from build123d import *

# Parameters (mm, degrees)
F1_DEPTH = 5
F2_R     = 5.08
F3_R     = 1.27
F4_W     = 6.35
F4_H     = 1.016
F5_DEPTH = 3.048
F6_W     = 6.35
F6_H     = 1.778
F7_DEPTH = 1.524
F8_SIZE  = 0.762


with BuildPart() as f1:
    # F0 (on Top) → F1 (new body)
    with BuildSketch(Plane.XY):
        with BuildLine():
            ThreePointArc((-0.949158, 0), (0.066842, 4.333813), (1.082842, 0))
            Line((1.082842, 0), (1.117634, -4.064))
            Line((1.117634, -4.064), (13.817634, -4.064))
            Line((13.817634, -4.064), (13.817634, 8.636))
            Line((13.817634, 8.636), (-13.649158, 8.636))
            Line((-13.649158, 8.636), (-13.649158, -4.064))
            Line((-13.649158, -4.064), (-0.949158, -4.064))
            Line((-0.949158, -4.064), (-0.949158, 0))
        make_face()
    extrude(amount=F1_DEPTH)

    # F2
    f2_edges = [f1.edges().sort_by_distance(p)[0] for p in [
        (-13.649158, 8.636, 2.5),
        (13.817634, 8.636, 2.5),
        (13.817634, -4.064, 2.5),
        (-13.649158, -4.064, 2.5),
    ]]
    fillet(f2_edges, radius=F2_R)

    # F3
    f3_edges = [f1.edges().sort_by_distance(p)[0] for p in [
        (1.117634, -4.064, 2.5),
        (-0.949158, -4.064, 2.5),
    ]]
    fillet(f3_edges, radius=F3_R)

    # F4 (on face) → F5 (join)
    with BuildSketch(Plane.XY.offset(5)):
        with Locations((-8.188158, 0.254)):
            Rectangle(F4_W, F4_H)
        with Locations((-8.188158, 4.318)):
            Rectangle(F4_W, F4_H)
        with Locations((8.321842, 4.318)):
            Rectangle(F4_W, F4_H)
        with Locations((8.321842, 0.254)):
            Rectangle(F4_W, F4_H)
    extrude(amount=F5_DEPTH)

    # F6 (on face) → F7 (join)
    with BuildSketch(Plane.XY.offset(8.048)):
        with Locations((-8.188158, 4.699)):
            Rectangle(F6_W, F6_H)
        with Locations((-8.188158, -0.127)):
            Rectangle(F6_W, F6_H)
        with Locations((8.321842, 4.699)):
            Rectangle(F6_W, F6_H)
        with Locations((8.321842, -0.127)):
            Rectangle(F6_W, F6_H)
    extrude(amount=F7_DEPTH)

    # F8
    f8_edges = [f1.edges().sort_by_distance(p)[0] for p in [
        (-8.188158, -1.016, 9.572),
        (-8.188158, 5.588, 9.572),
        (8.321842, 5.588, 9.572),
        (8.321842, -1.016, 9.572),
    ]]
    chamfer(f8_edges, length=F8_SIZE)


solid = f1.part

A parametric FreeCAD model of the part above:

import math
import FreeCAD as App
import Part
import Sketcher
from FreeCAD import Vector
Q = App.Units.Quantity


def edges_at(feature, points):
    """Names of the edges that pass closest to the given points."""
    edges = feature.Shape.Edges
    near = lambda p: min(range(len(edges)), key=lambda i: edges[i].distToShape(Part.Vertex(*p))[0])
    return sorted({f"Edge{near(p) + 1}" for p in points})

doc = App.newDocument("Part")
body = doc.addObject("PartDesign::Body", "Body")

sketch1 = doc.addObject("Sketcher::SketchObject", "Sketch")
body.addObject(sketch1)
sketch1.AttachmentSupport = (doc.XY_Plane, [""])
sketch1.MapMode = "FlatFace"
sketch1.addGeometry([
    Part.ArcOfCircle(Part.Circle(Vector(0.066842, 2.047813, 0), Vector(0, 0, 1), 2.286), math.radians(-63.612197), math.radians(243.612197)),
    Part.LineSegment(Vector(1.082842, 0, 0), Vector(1.117634, -4.064, 0)),
    Part.LineSegment(Vector(1.117634, -4.064, 0), Vector(13.817634, -4.064, 0)),
    Part.LineSegment(Vector(13.817634, -4.064, 0), Vector(13.817634, 8.636, 0)),
    Part.LineSegment(Vector(13.817634, 8.636, 0), Vector(-13.649158, 8.636, 0)),
    Part.LineSegment(Vector(-13.649158, 8.636, 0), Vector(-13.649158, -4.064, 0)),
    Part.LineSegment(Vector(-13.649158, -4.064, 0), Vector(-0.949158, -4.064, 0)),
    Part.LineSegment(Vector(-0.949158, -4.064, 0), Vector(-0.949158, 0, 0)),
], False)
sketch1.addConstraint([
    Sketcher.Constraint("Coincident", 0, 1, 1, 1),
    Sketcher.Constraint("Coincident", 1, 2, 2, 1),
    Sketcher.Constraint("Coincident", 2, 2, 3, 1),
    Sketcher.Constraint("Coincident", 3, 2, 4, 1),
    Sketcher.Constraint("Coincident", 4, 2, 5, 1),
    Sketcher.Constraint("Coincident", 5, 2, 6, 1),
    Sketcher.Constraint("Coincident", 6, 2, 7, 1),
    Sketcher.Constraint("Coincident", 7, 2, 0, 2),
    Sketcher.Constraint("Horizontal", 2),
    Sketcher.Constraint("Vertical", 3),
    Sketcher.Constraint("Horizontal", 4),
    Sketcher.Constraint("Vertical", 5),
    Sketcher.Constraint("Horizontal", 6),
    Sketcher.Constraint("Vertical", 7),
    Sketcher.Constraint("PointOnObject", 0, 1, -1),
    Sketcher.Constraint("PointOnObject", 7, 2, -1),
    Sketcher.Constraint("Horizontal", 2, 2, 5, 2),
    Sketcher.Constraint("Equal", 2, 6),
    Sketcher.Constraint("Equal", 6, 3),
    Sketcher.Constraint("Radius", 0, Q("0.09 in")),
    Sketcher.Constraint("DistanceX", 2, 1, 2, 2, Q("0.5 in")),
    Sketcher.Constraint("DistanceY", 7, 1, 7, 2, Q("0.16 in")),
    Sketcher.Constraint("DistanceX", 0, 3, 0, 1, Q("0.04 in")),
    Sketcher.Constraint("DistanceX", 4, 2, 4, 1, 27.466792),
    Sketcher.Constraint("DistanceX", -1, 1, 0, 3, 0.066842),
])
pad1 = doc.addObject("PartDesign::Pad", "Pad")
body.addObject(pad1)
pad1.Profile = sketch1
pad1.Length = 5
doc.recompute()

fillet = doc.addObject("PartDesign::Fillet", "Fillet")
body.addObject(fillet)
fillet.Base = (pad1, edges_at(pad1, [
    (-13.649, 8.636, 2.5),
    (13.818, 8.636, 2.5),
    (13.818, -4.064, 2.5),
    (-13.649, -4.064, 2.5),
]))
fillet.Radius = Q("0.2 in")
doc.recompute()

fillet2 = doc.addObject("PartDesign::Fillet", "Fillet001")
body.addObject(fillet2)
fillet2.Base = (fillet, edges_at(fillet, [(1.118, -4.064, 2.5), (-0.949, -4.064, 2.5)]))
fillet2.Radius = Q("0.05 in")

sketch2 = doc.addObject("Sketcher::SketchObject", "Sketch001")
body.addObject(sketch2)
sketch2.AttachmentSupport = (doc.XY_Plane, [""])
sketch2.MapMode = "FlatFace"
sketch2.AttachmentOffset = App.Placement(Vector(0, 0, 5), App.Rotation())
sketch2.addGeometry([
    Part.LineSegment(Vector(-11.363158, 0.762, 0), Vector(-11.363158, -0.254, 0)),
    Part.LineSegment(Vector(-11.363158, -0.254, 0), Vector(-5.013158, -0.254, 0)),
    Part.LineSegment(Vector(-5.013158, -0.254, 0), Vector(-5.013158, 0.762, 0)),
    Part.LineSegment(Vector(-5.013158, 0.762, 0), Vector(-11.363158, 0.762, 0)),
    Part.LineSegment(Vector(-11.363158, 4.826, 0), Vector(-11.363158, 3.81, 0)),
    Part.LineSegment(Vector(-11.363158, 3.81, 0), Vector(-5.013158, 3.81, 0)),
    Part.LineSegment(Vector(-5.013158, 3.81, 0), Vector(-5.013158, 4.826, 0)),
    Part.LineSegment(Vector(-5.013158, 4.826, 0), Vector(-11.363158, 4.826, 0)),
    Part.LineSegment(Vector(5.146842, 4.826, 0), Vector(5.146842, 3.81, 0)),
    Part.LineSegment(Vector(5.146842, 3.81, 0), Vector(11.496842, 3.81, 0)),
    Part.LineSegment(Vector(11.496842, 3.81, 0), Vector(11.496842, 4.826, 0)),
    Part.LineSegment(Vector(11.496842, 4.826, 0), Vector(5.146842, 4.826, 0)),
    Part.LineSegment(Vector(5.146842, 0.762, 0), Vector(5.146842, -0.254, 0)),
    Part.LineSegment(Vector(5.146842, -0.254, 0), Vector(11.496842, -0.254, 0)),
    Part.LineSegment(Vector(11.496842, -0.254, 0), Vector(11.496842, 0.762, 0)),
    Part.LineSegment(Vector(11.496842, 0.762, 0), Vector(5.146842, 0.762, 0)),
], False)
sketch2.addConstraint([
    Sketcher.Constraint("Coincident", 0, 2, 1, 1),
    Sketcher.Constraint("Coincident", 1, 2, 2, 1),
    Sketcher.Constraint("Coincident", 2, 2, 3, 1),
    Sketcher.Constraint("Coincident", 3, 2, 0, 1),
    Sketcher.Constraint("Coincident", 4, 2, 5, 1),
    Sketcher.Constraint("Coincident", 5, 2, 6, 1),
    Sketcher.Constraint("Coincident", 6, 2, 7, 1),
    Sketcher.Constraint("Coincident", 7, 2, 4, 1),
    Sketcher.Constraint("Coincident", 8, 2, 9, 1),
    Sketcher.Constraint("Coincident", 9, 2, 10, 1),
    Sketcher.Constraint("Coincident", 10, 2, 11, 1),
    Sketcher.Constraint("Coincident", 11, 2, 8, 1),
    Sketcher.Constraint("Coincident", 12, 2, 13, 1),
    Sketcher.Constraint("Coincident", 13, 2, 14, 1),
    Sketcher.Constraint("Coincident", 14, 2, 15, 1),
    Sketcher.Constraint("Coincident", 15, 2, 12, 1),
    Sketcher.Constraint("Vertical", 0),
    Sketcher.Constraint("Horizontal", 1),
    Sketcher.Constraint("Vertical", 2),
    Sketcher.Constraint("Horizontal", 3),
    Sketcher.Constraint("Vertical", 4),
    Sketcher.Constraint("Horizontal", 5),
    Sketcher.Constraint("Vertical", 6),
    Sketcher.Constraint("Horizontal", 7),
    Sketcher.Constraint("Vertical", 8),
    Sketcher.Constraint("Horizontal", 9),
    Sketcher.Constraint("Vertical", 10),
    Sketcher.Constraint("Horizontal", 11),
    Sketcher.Constraint("Vertical", 12),
    Sketcher.Constraint("Horizontal", 13),
    Sketcher.Constraint("Vertical", 14),
    Sketcher.Constraint("Horizontal", 15),
    Sketcher.Constraint("Horizontal", 5, 2, 8, 2),
    Sketcher.Constraint("Horizontal", 7, 2, 10, 2),
    Sketcher.Constraint("Horizontal", 1, 2, 12, 2),
    Sketcher.Constraint("Horizontal", 3, 2, 14, 2),
    Sketcher.Constraint("Vertical", 3, 2, 4, 2),
    Sketcher.Constraint("Vertical", 2, 2, 5, 2),
    Sketcher.Constraint("Vertical", 11, 2, 12, 2),
    Sketcher.Constraint("Vertical", 10, 2, 13, 2),
    Sketcher.Constraint("Equal", 7, 9),
    Sketcher.Constraint("Equal", 2, 4),
    Sketcher.Constraint("DistanceX", 1, 1, 1, 2, Q("0.25 in")),
    Sketcher.Constraint("DistanceY", 0, 2, 0, 1, Q("0.04 in")),
    Sketcher.Constraint("DistanceY", 1, 2, 6, 2, Q("0.2 in")),
    Sketcher.Constraint("DistanceX", 5, 2, 8, 2, Q("0.4 in")),
    Sketcher.Constraint("DistanceY", 0, 2, -1, 1, Q("0.01 in")),
    Sketcher.Constraint("DistanceX", -1, 1, 9, 2, 11.496842),
])
pad2 = doc.addObject("PartDesign::Pad", "Pad001")
body.addObject(pad2)
pad2.Profile = sketch2
pad2.Length = Q("0.12 in")

sketch3 = doc.addObject("Sketcher::SketchObject", "Sketch002")
body.addObject(sketch3)
sketch3.AttachmentSupport = (doc.XY_Plane, [""])
sketch3.MapMode = "FlatFace"
sketch3.AttachmentOffset = App.Placement(Vector(0, 0, 8.048), App.Rotation())
sketch3.addGeometry([
    Part.LineSegment(Vector(-11.363158, 5.588, 0), Vector(-11.363158, 3.81, 0)),
    Part.LineSegment(Vector(-11.363158, 3.81, 0), Vector(-5.013158, 3.81, 0)),
    Part.LineSegment(Vector(-5.013158, 3.81, 0), Vector(-5.013158, 5.588, 0)),
    Part.LineSegment(Vector(-5.013158, 5.588, 0), Vector(-11.363158, 5.588, 0)),
    Part.LineSegment(Vector(-11.363158, 0.762, 0), Vector(-11.363158, -1.016, 0)),
    Part.LineSegment(Vector(-11.363158, -1.016, 0), Vector(-5.013158, -1.016, 0)),
    Part.LineSegment(Vector(-5.013158, -1.016, 0), Vector(-5.013158, 0.762, 0)),
    Part.LineSegment(Vector(-5.013158, 0.762, 0), Vector(-11.363158, 0.762, 0)),
    Part.LineSegment(Vector(5.146842, 5.588, 0), Vector(5.146842, 3.81, 0)),
    Part.LineSegment(Vector(5.146842, 3.81, 0), Vector(11.496842, 3.81, 0)),
    Part.LineSegment(Vector(11.496842, 3.81, 0), Vector(11.496842, 5.588, 0)),
    Part.LineSegment(Vector(11.496842, 5.588, 0), Vector(5.146842, 5.588, 0)),
    Part.LineSegment(Vector(5.146842, 0.762, 0), Vector(5.146842, -1.016, 0)),
    Part.LineSegment(Vector(5.146842, -1.016, 0), Vector(11.496842, -1.016, 0)),
    Part.LineSegment(Vector(11.496842, -1.016, 0), Vector(11.496842, 0.762, 0)),
    Part.LineSegment(Vector(11.496842, 0.762, 0), Vector(5.146842, 0.762, 0)),
], False)
sketch3.addConstraint([
    Sketcher.Constraint("Coincident", 0, 2, 1, 1),
    Sketcher.Constraint("Coincident", 1, 2, 2, 1),
    Sketcher.Constraint("Coincident", 2, 2, 3, 1),
    Sketcher.Constraint("Coincident", 3, 2, 0, 1),
    Sketcher.Constraint("Coincident", 4, 2, 5, 1),
    Sketcher.Constraint("Coincident", 5, 2, 6, 1),
    Sketcher.Constraint("Coincident", 6, 2, 7, 1),
    Sketcher.Constraint("Coincident", 7, 2, 4, 1),
    Sketcher.Constraint("Coincident", 8, 2, 9, 1),
    Sketcher.Constraint("Coincident", 9, 2, 10, 1),
    Sketcher.Constraint("Coincident", 10, 2, 11, 1),
    Sketcher.Constraint("Coincident", 11, 2, 8, 1),
    Sketcher.Constraint("Coincident", 12, 2, 13, 1),
    Sketcher.Constraint("Coincident", 13, 2, 14, 1),
    Sketcher.Constraint("Coincident", 14, 2, 15, 1),
    Sketcher.Constraint("Coincident", 15, 2, 12, 1),
    Sketcher.Constraint("Vertical", 0),
    Sketcher.Constraint("Horizontal", 1),
    Sketcher.Constraint("Vertical", 2),
    Sketcher.Constraint("Horizontal", 3),
    Sketcher.Constraint("Vertical", 4),
    Sketcher.Constraint("Horizontal", 5),
    Sketcher.Constraint("Vertical", 6),
    Sketcher.Constraint("Horizontal", 7),
    Sketcher.Constraint("Vertical", 8),
    Sketcher.Constraint("Horizontal", 9),
    Sketcher.Constraint("Vertical", 10),
    Sketcher.Constraint("Horizontal", 11),
    Sketcher.Constraint("Vertical", 12),
    Sketcher.Constraint("Horizontal", 13),
    Sketcher.Constraint("Vertical", 14),
    Sketcher.Constraint("Horizontal", 15),
    Sketcher.Constraint("Horizontal", 1, 2, 8, 2),
    Sketcher.Constraint("Horizontal", 3, 2, 10, 2),
    Sketcher.Constraint("Horizontal", 5, 2, 12, 2),
    Sketcher.Constraint("Horizontal", 7, 2, 14, 2),
    Sketcher.Constraint("Vertical", 3, 2, 4, 2),
    Sketcher.Constraint("Vertical", 2, 2, 5, 2),
    Sketcher.Constraint("Vertical", 11, 2, 12, 2),
    Sketcher.Constraint("Vertical", 10, 2, 13, 2),
    Sketcher.Constraint("Equal", 7, 9),
    Sketcher.Constraint("Equal", 2, 4),
    Sketcher.Constraint("DistanceX", 1, 1, 1, 2, Q("0.25 in")),
    Sketcher.Constraint("DistanceY", 0, 2, 0, 1, Q("0.07 in")),
    Sketcher.Constraint("DistanceX", 1, 2, 8, 2, Q("0.4 in")),
    Sketcher.Constraint("DistanceY", -1, 1, 0, 2, Q("0.15 in")),
    Sketcher.Constraint("DistanceY", 4, 2, -1, 1, Q("0.04 in")),
    Sketcher.Constraint("DistanceX", -1, 1, 9, 2, 11.496842),
])
pad3 = doc.addObject("PartDesign::Pad", "Pad002")
body.addObject(pad3)
pad3.Profile = sketch3
pad3.Length = Q("0.06 in")
doc.recompute()

chamfer = doc.addObject("PartDesign::Chamfer", "Chamfer")
body.addObject(chamfer)
chamfer.Base = (pad3, edges_at(pad3, [
    (-8.188, -1.016, 9.572),
    (-8.188, 5.588, 9.572),
    (8.322, 5.588, 9.572),
    (8.322, -1.016, 9.572),
]))
chamfer.Size = Q("0.03 in")

doc.recompute()
